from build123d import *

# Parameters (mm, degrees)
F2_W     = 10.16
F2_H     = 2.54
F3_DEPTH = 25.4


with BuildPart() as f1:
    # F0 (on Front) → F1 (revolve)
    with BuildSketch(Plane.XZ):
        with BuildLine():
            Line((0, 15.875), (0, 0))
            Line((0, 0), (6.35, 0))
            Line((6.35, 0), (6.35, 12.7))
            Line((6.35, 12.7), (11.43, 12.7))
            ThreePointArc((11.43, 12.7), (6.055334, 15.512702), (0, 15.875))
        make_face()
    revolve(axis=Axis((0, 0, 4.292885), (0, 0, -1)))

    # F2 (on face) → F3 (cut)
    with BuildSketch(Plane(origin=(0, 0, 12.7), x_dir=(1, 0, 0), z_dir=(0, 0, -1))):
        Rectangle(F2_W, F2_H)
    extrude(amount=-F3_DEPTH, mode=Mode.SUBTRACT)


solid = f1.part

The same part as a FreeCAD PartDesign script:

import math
import FreeCAD as App
import Part
import Sketcher

V = App.Vector
Q = App.Units.Quantity

doc = App.newDocument("Part")
body = doc.addObject("PartDesign::Body", "Body")

# Sketch on XZ plane
sketch1 = doc.addObject("Sketcher::SketchObject", "Sketch")
body.addObject(sketch1)
sketch1.AttachmentSupport = (doc.XZ_Plane, [""])
sketch1.MapMode = "FlatFace"
sketch1.addGeometry(Part.LineSegment(V(0, 16, 0), V(0, 0, 0)), False)
sketch1.addGeometry(Part.LineSegment(V(0, 0, 0), V(6, 0, 0)), False)
sketch1.addGeometry(Part.LineSegment(V(6, 0, 0), V(6, 13, 0)), False)
sketch1.addGeometry(Part.LineSegment(V(6, 13, 0), V(11, 13, 0)), False)
sketch1.addGeometry(Part.ArcOfCircle(Part.Circle(V(2, 2, 0), V(0, 0, 1), 14), math.radians(50), math.radians(99)), False)
sketch1.addConstraint(Sketcher.Constraint("Coincident", 0, 2, 1, 1))
sketch1.addConstraint(Sketcher.Constraint("Coincident", 1, 2, 2, 1))
sketch1.addConstraint(Sketcher.Constraint("Coincident", 2, 2, 3, 1))
sketch1.addConstraint(Sketcher.Constraint("Coincident", 3, 2, 4, 1))
sketch1.addConstraint(Sketcher.Constraint("Coincident", 4, 2, 0, 1))
sketch1.addConstraint(Sketcher.Constraint("Vertical", 0))
sketch1.addConstraint(Sketcher.Constraint("Horizontal", 1))
sketch1.addConstraint(Sketcher.Constraint("Vertical", 2))
sketch1.addConstraint(Sketcher.Constraint("Horizontal", 3))
sketch1.addConstraint(Sketcher.Constraint("Coincident", 0, 2, -1, 1))
sketch1.addConstraint(Sketcher.Constraint("DistanceX", 3, 1, 3, 2, Q("0.2 in")))
sketch1.addConstraint(Sketcher.Constraint("DistanceY", 2, 1, 2, 2, Q("0.5 in")))
sketch1.addConstraint(Sketcher.Constraint("DistanceX", 1, 1, 1, 2, Q("0.25 in")))
sketch1.addConstraint(Sketcher.Constraint("DistanceY", 0, 2, 0, 1, Q("0.625 in")))
sketch1.addConstraint(Sketcher.Constraint("Radius", 4, Q("14.469389 mm")))
revolution = doc.addObject("PartDesign::Revolution", "Revolution")
body.addObject(revolution)
revolution.Profile = sketch1
revolution.ReferenceAxis = (sketch1, ["V_Axis"])
revolution.Angle = 360

# Sketch on XY plane
sketch2 = doc.addObject("Sketcher::SketchObject", "Sketch001")
body.addObject(sketch2)
sketch2.AttachmentSupport = (doc.XY_Plane, [""])
sketch2.MapMode = "FlatFace"
sketch2.AttachmentOffset = App.Placement(V(0, 0, 0.5 * 25.4), App.Rotation())
sketch2.addGeometry(Part.LineSegment(V(-5.1, -1.3, 0), V(-5.1, 1.3, 0)), False)
sketch2.addGeometry(Part.LineSegment(V(-5.1, 1.3, 0), V(5.1, 1.3, 0)), False)
sketch2.addGeometry(Part.LineSegment(V(5.1, 1.3, 0), V(5.1, -1.3, 0)), False)
sketch2.addGeometry(Part.LineSegment(V(5.1, -1.3, 0), V(-5.1, -1.3, 0)), False)
sketch2.addConstraint(Sketcher.Constraint("Coincident", 0, 2, 1, 1))
sketch2.addConstraint(Sketcher.Constraint("Coincident", 1, 2, 2, 1))
sketch2.addConstraint(Sketcher.Constraint("Coincident", 2, 2, 3, 1))
sketch2.addConstraint(Sketcher.Constraint("Coincident", 3, 2, 0, 1))
sketch2.addConstraint(Sketcher.Constraint("Vertical", 0))
sketch2.addConstraint(Sketcher.Constraint("Horizontal", 1))
sketch2.addConstraint(Sketcher.Constraint("Vertical", 2))
sketch2.addConstraint(Sketcher.Constraint("Horizontal", 3))
sketch2.addConstraint(Sketcher.Constraint("Symmetric", 0, 2, 2, 2, -1, 1))
sketch2.addConstraint(Sketcher.Constraint("DistanceX", 1, 1, 1, 2, Q("0.4 in")))
sketch2.addConstraint(Sketcher.Constraint("DistanceY", 0, 1, 0, 2, Q("0.1 in")))
pocket1 = doc.addObject("PartDesign::Pocket", "Pocket")
body.addObject(pocket1)
pocket1.Profile = sketch2
pocket1.Length = Q("1 in")
pocket1.Reversed = True

doc.recompute()
